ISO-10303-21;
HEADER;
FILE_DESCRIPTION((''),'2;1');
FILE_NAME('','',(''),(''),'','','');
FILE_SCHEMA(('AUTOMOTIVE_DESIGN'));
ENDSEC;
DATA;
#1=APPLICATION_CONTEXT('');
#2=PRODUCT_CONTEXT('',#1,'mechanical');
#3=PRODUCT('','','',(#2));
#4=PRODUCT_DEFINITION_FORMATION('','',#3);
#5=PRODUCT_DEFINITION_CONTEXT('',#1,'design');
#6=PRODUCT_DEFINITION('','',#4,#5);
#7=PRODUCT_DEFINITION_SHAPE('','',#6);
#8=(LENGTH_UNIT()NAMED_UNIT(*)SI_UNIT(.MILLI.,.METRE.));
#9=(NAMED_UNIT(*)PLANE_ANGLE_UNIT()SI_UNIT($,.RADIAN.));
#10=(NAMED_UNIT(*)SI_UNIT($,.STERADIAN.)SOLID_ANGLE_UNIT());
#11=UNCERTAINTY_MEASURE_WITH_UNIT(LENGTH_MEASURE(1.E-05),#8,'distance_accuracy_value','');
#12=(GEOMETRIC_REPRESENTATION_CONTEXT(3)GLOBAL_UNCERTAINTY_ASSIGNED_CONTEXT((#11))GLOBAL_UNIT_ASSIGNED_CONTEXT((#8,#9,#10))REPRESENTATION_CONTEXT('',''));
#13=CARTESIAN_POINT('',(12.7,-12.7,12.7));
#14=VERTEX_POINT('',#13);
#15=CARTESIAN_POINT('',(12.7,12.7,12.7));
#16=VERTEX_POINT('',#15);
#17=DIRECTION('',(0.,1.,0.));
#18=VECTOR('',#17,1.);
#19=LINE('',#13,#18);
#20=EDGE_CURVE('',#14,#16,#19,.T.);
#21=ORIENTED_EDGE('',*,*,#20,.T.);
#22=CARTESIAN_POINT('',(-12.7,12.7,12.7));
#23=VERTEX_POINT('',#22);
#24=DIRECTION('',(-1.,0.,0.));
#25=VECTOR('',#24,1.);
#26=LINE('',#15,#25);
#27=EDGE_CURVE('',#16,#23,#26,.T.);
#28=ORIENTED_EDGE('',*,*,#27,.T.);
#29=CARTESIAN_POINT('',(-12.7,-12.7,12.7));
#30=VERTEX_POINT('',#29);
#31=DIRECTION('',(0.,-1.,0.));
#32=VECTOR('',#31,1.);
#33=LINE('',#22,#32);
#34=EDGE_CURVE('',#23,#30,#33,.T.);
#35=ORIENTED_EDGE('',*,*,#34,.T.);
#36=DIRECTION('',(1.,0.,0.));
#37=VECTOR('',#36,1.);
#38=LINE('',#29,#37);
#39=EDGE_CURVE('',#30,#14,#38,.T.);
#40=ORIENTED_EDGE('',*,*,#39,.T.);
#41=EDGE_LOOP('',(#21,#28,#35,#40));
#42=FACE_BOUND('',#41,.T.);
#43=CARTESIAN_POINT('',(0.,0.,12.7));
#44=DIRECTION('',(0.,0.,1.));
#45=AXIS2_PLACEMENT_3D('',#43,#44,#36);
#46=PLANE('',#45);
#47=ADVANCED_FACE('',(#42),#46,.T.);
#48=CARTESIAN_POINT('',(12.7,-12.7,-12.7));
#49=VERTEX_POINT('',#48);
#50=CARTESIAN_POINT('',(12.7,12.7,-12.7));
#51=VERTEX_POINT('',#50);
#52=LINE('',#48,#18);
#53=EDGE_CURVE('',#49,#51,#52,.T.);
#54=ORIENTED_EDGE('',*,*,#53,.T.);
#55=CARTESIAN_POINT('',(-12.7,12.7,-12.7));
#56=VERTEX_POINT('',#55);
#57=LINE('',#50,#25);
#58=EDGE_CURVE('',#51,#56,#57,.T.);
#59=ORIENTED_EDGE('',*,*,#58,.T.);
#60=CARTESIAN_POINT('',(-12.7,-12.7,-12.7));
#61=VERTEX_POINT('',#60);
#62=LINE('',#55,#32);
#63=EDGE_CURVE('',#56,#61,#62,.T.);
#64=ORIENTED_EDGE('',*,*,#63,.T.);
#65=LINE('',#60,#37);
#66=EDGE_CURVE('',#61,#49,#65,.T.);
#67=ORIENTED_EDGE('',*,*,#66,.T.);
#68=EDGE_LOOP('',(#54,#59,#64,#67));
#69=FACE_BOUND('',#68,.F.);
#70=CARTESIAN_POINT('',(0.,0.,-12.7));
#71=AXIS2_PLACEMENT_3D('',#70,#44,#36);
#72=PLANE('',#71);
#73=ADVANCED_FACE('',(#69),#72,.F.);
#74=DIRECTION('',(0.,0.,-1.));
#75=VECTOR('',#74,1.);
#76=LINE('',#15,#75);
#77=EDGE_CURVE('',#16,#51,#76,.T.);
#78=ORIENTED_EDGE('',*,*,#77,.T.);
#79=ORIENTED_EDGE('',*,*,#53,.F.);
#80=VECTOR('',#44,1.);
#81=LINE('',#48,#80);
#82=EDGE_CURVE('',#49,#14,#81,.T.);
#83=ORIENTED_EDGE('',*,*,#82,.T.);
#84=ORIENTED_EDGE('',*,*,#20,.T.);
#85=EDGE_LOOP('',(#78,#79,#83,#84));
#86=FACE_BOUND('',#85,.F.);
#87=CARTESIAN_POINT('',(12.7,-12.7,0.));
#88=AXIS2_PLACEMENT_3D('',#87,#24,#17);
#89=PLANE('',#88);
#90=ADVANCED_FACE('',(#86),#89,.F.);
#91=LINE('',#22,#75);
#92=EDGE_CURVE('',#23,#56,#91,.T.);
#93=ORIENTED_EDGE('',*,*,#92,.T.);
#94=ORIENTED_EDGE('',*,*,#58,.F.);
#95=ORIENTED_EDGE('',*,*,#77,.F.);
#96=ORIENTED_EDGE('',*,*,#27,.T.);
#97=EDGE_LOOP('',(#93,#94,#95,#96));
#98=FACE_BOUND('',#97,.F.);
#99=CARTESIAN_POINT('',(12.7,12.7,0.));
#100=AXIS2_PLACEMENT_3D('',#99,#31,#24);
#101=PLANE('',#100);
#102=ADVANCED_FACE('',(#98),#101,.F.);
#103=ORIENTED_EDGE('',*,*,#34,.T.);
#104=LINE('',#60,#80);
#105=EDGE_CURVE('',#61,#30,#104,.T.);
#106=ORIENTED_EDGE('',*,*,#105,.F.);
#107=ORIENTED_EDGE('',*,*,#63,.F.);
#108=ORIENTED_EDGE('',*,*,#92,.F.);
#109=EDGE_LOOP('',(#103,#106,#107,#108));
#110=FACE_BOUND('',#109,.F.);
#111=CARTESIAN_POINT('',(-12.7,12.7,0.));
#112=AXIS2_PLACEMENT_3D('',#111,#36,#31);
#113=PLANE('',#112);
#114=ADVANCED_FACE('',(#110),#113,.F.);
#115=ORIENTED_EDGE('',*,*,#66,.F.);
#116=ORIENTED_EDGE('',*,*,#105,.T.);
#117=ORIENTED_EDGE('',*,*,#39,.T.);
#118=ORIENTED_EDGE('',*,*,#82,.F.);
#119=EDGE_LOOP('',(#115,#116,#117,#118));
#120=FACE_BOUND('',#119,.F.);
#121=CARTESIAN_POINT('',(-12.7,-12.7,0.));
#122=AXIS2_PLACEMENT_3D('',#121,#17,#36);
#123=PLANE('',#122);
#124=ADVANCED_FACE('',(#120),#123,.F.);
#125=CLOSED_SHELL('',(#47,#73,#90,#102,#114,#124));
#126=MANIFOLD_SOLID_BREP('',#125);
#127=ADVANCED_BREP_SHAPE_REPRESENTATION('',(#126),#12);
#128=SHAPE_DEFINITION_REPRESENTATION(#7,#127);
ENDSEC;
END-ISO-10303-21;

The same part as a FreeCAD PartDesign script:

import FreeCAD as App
import Part
import Sketcher
Q = App.Units.Quantity

doc = App.newDocument("Part")
body = doc.addObject("PartDesign::Body", "Body")

# Sketch on XY plane
sketch1 = doc.addObject("Sketcher::SketchObject", "Sketch")
body.addObject(sketch1)
sketch1.AttachmentSupport = (doc.XY_Plane, [""])
sketch1.MapMode = "FlatFace"
sketch1.addGeometry(Part.LineSegment(App.Vector(-12.7, 12.7, 0), App.Vector(-12.7, -12.7, 0)), False)
sketch1.addGeometry(Part.LineSegment(App.Vector(-12.7, -12.7, 0), App.Vector(12.7, -12.7, 0)), False)
sketch1.addGeometry(Part.LineSegment(App.Vector(12.7, -12.7, 0), App.Vector(12.7, 12.7, 0)), False)
sketch1.addGeometry(Part.LineSegment(App.Vector(12.7, 12.7, 0), App.Vector(-12.7, 12.7, 0)), False)
sketch1.addConstraint(Sketcher.Constraint("Coincident", 0, 2, 1, 1))
sketch1.addConstraint(Sketcher.Constraint("Coincident", 1, 2, 2, 1))
sketch1.addConstraint(Sketcher.Constraint("Coincident", 2, 2, 3, 1))
sketch1.addConstraint(Sketcher.Constraint("Coincident", 3, 2, 0, 1))
sketch1.addConstraint(Sketcher.Constraint("Vertical", 0))
sketch1.addConstraint(Sketcher.Constraint("Horizontal", 1))
sketch1.addConstraint(Sketcher.Constraint("Vertical", 2))
sketch1.addConstraint(Sketcher.Constraint("Horizontal", 3))
sketch1.addConstraint(Sketcher.Constraint("Symmetric", 0, 2, 2, 2, -1, 1))
sketch1.addConstraint(Sketcher.Constraint("Equal", 3, 0))
sketch1.addConstraint(Sketcher.Constraint("DistanceX", 1, 1, 1, 2, Q("1 in")))
pad1 = doc.addObject("PartDesign::Pad", "Pad")
body.addObject(pad1)
pad1.Profile = sketch1
pad1.Length = Q("1 in")
pad1.Midplane = True

doc.recompute()
